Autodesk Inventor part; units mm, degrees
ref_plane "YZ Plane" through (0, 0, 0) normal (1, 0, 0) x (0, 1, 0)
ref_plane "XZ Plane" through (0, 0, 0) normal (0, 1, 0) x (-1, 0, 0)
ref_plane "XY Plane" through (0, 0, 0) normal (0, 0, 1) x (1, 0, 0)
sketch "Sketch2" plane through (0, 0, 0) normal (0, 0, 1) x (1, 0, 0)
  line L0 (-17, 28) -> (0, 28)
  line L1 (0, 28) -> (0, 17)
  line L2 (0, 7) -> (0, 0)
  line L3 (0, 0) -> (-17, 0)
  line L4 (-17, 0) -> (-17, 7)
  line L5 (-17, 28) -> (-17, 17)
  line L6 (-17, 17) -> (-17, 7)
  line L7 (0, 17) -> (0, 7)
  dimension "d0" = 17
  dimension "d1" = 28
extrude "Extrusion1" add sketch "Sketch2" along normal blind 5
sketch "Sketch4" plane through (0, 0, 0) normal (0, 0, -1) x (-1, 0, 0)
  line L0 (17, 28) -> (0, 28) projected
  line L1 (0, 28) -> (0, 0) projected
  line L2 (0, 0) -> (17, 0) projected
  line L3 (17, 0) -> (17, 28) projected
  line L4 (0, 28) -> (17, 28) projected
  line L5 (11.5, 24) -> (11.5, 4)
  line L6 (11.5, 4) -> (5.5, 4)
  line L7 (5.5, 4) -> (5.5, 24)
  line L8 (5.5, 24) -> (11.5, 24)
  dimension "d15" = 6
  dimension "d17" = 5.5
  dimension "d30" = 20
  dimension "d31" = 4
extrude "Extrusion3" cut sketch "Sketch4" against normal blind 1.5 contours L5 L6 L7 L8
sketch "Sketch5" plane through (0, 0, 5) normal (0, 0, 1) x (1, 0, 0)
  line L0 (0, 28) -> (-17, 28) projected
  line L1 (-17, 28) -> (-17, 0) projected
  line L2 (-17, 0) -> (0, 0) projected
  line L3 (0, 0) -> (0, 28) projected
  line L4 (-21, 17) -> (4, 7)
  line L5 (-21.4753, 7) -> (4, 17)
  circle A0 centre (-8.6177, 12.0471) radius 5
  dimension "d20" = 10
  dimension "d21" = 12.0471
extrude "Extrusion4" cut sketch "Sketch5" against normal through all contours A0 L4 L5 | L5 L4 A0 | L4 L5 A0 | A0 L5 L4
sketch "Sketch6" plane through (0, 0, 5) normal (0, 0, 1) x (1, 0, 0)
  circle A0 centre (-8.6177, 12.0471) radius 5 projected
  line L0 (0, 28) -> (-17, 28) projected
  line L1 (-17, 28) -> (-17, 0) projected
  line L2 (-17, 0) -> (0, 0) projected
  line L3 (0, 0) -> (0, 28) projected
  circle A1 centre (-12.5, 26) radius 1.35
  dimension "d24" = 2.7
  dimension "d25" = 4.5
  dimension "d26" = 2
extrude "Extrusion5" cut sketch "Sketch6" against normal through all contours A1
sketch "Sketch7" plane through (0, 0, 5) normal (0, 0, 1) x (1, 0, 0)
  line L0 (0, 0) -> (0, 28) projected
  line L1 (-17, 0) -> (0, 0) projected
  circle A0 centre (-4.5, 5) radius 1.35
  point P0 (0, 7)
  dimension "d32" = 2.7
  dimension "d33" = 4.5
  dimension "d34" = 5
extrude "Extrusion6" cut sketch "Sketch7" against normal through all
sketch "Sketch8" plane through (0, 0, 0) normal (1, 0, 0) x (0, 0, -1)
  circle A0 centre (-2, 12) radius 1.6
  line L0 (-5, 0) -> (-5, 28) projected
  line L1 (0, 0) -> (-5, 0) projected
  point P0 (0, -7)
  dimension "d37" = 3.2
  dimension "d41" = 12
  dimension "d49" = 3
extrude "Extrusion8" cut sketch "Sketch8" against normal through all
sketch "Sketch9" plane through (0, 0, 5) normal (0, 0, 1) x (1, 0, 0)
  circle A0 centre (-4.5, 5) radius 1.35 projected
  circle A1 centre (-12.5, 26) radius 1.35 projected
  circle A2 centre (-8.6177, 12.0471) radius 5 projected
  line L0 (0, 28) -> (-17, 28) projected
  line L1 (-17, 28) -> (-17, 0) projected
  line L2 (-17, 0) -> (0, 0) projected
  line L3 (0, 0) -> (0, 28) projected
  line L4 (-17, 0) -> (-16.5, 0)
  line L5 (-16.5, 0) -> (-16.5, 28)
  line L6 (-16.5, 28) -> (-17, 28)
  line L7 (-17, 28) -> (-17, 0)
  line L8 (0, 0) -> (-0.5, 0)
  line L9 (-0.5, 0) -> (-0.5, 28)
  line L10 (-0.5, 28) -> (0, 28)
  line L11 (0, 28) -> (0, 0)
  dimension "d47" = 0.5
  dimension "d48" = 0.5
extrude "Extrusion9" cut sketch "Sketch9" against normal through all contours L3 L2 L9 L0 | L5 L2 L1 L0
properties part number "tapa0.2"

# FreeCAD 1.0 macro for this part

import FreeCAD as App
import Part
import Sketcher
Q = App.Units.Quantity


def add_polygon(sketch, points):
    """Adds a closed chain of lines whose ends are joined by coincident constraints."""
    first, n = sketch.GeometryCount, len(points)
    for a, b in zip(points, points[1:] + points[:1]):
        sketch.addGeometry(Part.LineSegment(App.Vector(*a, 0), App.Vector(*b, 0)), False)
    for i in range(n):
        sketch.addConstraint(Sketcher.Constraint("Coincident", first + i, 2, first + (i + 1) % n, 1))

doc = App.newDocument("Part")
body = doc.addObject("PartDesign::Body", "Body")

# Sketch on XY plane
sketch1 = body.newObject("Sketcher::SketchObject", "Sketch")
sketch1.AttachmentSupport = (doc.getObject("XY_Plane"), [""])
sketch1.MapMode = "FlatFace"
add_polygon(sketch1, [(0, 28), (-17, 28), (-17, 0), (0, 0)])  # lines 0-3
sketch1.addConstraint(Sketcher.Constraint("Horizontal", 0))
sketch1.addConstraint(Sketcher.Constraint("Vertical", 1))
sketch1.addConstraint(Sketcher.Constraint("Horizontal", 2))
sketch1.addConstraint(Sketcher.Constraint("Vertical", 3))
sketch1.addConstraint(Sketcher.Constraint("Coincident", 2, 2, -1, 1))
sketch1.addConstraint(Sketcher.Constraint("DistanceX", 0, 2, 0, 1, Q("17 mm")))
sketch1.addConstraint(Sketcher.Constraint("DistanceY", 1, 2, 1, 1, Q("28 mm")))
pad1 = body.newObject("PartDesign::Pad", "Pad")
pad1.Profile = sketch1
pad1.Length = 5

# Sketch on XY plane
sketch2 = body.newObject("Sketcher::SketchObject", "Sketch001")
sketch2.AttachmentSupport = (doc.getObject("XY_Plane"), [""])
sketch2.MapMode = "FlatFace"
add_polygon(sketch2, [(-12, 4), (-12, 24), (-6, 24), (-6, 4)])  # lines 0-3
sketch2.addConstraint(Sketcher.Constraint("Vertical", 0))
sketch2.addConstraint(Sketcher.Constraint("Horizontal", 1))
sketch2.addConstraint(Sketcher.Constraint("Vertical", 2))
sketch2.addConstraint(Sketcher.Constraint("Horizontal", 3))
sketch2.addConstraint(Sketcher.Constraint("DistanceX", 1, 1, 1, 2, Q("6 mm")))
sketch2.addConstraint(Sketcher.Constraint("DistanceY", 0, 1, 0, 2, Q("20 mm")))
sketch2.addConstraint(Sketcher.Constraint("DistanceY", -1, 1, 2, 2, Q("4 mm")))
sketch2.addConstraint(Sketcher.Constraint("DistanceX", 1, 2, -1, 1, Q("5.5 mm")))
pocket1 = body.newObject("PartDesign::Pocket", "Pocket")
pocket1.Profile = sketch2
pocket1.Length = 1.5
pocket1.Reversed = True

# Sketch on XY plane
sketch3 = body.newObject("Sketcher::SketchObject", "Sketch002")
sketch3.AttachmentSupport = (doc.getObject("XY_Plane"), [""])
sketch3.MapMode = "FlatFace"
sketch3.AttachmentOffset = App.Placement(App.Vector(0, 0, 5), App.Rotation())
sketch3.addGeometry(Part.Circle(App.Vector(-9, 12, 0), App.Vector(0, 0, 1), 5), False)
sketch3.addConstraint(Sketcher.Constraint("Diameter", 0, Q("10 mm")))
sketch3.addConstraint(Sketcher.Constraint("DistanceY", -1, 1, 0, 3, Q("12.047 mm")))
sketch3.addConstraint(Sketcher.Constraint("DistanceX", 0, 3, -1, 1, Q("8.6177 mm")))
pocket2 = body.newObject("PartDesign::Pocket", "Pocket001")
pocket2.Profile = sketch3
pocket2.Type = "ThroughAll"

# Sketch on XY plane
sketch4 = body.newObject("Sketcher::SketchObject", "Sketch003")
sketch4.AttachmentSupport = (doc.getObject("XY_Plane"), [""])
sketch4.MapMode = "FlatFace"
sketch4.AttachmentOffset = App.Placement(App.Vector(0, 0, 5), App.Rotation())
sketch4.addGeometry(Part.Circle(App.Vector(-12.5, 26, 0), App.Vector(0, 0, 1), 1.4), False)
sketch4.addConstraint(Sketcher.Constraint("Diameter", 0, Q("2.7 mm")))
sketch4.addConstraint(Sketcher.Constraint("DistanceY", -1, 1, 0, 3, Q("26 mm")))
sketch4.addConstraint(Sketcher.Constraint("DistanceX", 0, 3, -1, 1, Q("12.5 mm")))
pocket3 = body.newObject("PartDesign::Pocket", "Pocket002")
pocket3.Profile = sketch4
pocket3.Type = "ThroughAll"

# Sketch on XY plane
sketch5 = body.newObject("Sketcher::SketchObject", "Sketch004")
sketch5.AttachmentSupport = (doc.getObject("XY_Plane"), [""])
sketch5.MapMode = "FlatFace"
sketch5.AttachmentOffset = App.Placement(App.Vector(0, 0, 5), App.Rotation())
sketch5.addGeometry(Part.Circle(App.Vector(-4.5, 5, 0), App.Vector(0, 0, 1), 1.4), False)
sketch5.addConstraint(Sketcher.Constraint("Diameter", 0, Q("2.7 mm")))
sketch5.addConstraint(Sketcher.Constraint("DistanceY", -1, 1, 0, 3, Q("5 mm")))
sketch5.addConstraint(Sketcher.Constraint("DistanceX", 0, 3, -1, 1, Q("4.5 mm")))
pocket4 = body.newObject("PartDesign::Pocket", "Pocket003")
pocket4.Profile = sketch5
pocket4.Type = "ThroughAll"

# Sketch on YZ plane
sketch6 = body.newObject("Sketcher::SketchObject", "Sketch005")
sketch6.AttachmentSupport = (doc.getObject("YZ_Plane"), [""])
sketch6.MapMode = "FlatFace"
sketch6.addGeometry(Part.Circle(App.Vector(12, 2, 0), App.Vector(0, 0, 1), 1.6), False)
sketch6.addConstraint(Sketcher.Constraint("Diameter", 0, Q("3.2 mm")))
sketch6.addConstraint(Sketcher.Constraint("DistanceX", -1, 1, 0, 3, Q("12 mm")))
sketch6.addConstraint(Sketcher.Constraint("DistanceY", -1, 1, 0, 3, Q("2 mm")))
pocket5 = body.newObject("PartDesign::Pocket", "Pocket004")
pocket5.Profile = sketch6
pocket5.Type = "ThroughAll"

# Sketch on XY plane
sketch7 = body.newObject("Sketcher::SketchObject", "Sketch006")
sketch7.AttachmentSupport = (doc.getObject("XY_Plane"), [""])
sketch7.MapMode = "FlatFace"
sketch7.AttachmentOffset = App.Placement(App.Vector(0, 0, 5), App.Rotation())
add_polygon(sketch7, [(0, 0), (0, 28), (-0.5, 28), (-0.5, 0)])  # lines 0-3
add_polygon(sketch7, [(-16.5, 0), (-16.5, 28), (-17, 28), (-17, 0)])  # lines 4-7
sketch7.addConstraint(Sketcher.Constraint("Vertical", 0))
sketch7.addConstraint(Sketcher.Constraint("Horizontal", 1))
sketch7.addConstraint(Sketcher.Constraint("Vertical", 2))
sketch7.addConstraint(Sketcher.Constraint("Horizontal", 3))
sketch7.addConstraint(Sketcher.Constraint("Vertical", 4))
sketch7.addConstraint(Sketcher.Constraint("Horizontal", 5))
sketch7.addConstraint(Sketcher.Constraint("Vertical", 6))
sketch7.addConstraint(Sketcher.Constraint("Horizontal", 7))
sketch7.addConstraint(Sketcher.Constraint("Coincident", 3, 2, -1, 1))
sketch7.addConstraint(Sketcher.Constraint("PointOnObject", 6, 2, -1))
sketch7.addConstraint(Sketcher.Constraint("Horizontal", 1, 2, 4, 2))
sketch7.addConstraint(Sketcher.Constraint("Equal", 3, 5))
sketch7.addConstraint(Sketcher.Constraint("DistanceX", 1, 2, 1, 1, Q("0.5 mm")))
sketch7.addConstraint(Sketcher.Constraint("DistanceY", 0, 1, 0, 2, Q("28 mm")))
sketch7.addConstraint(Sketcher.Constraint("DistanceX", 5, 2, -1, 1, Q("17 mm")))
pocket6 = body.newObject("PartDesign::Pocket", "Pocket005")
pocket6.Profile = sketch7
pocket6.Type = "ThroughAll"

doc.recompute()
